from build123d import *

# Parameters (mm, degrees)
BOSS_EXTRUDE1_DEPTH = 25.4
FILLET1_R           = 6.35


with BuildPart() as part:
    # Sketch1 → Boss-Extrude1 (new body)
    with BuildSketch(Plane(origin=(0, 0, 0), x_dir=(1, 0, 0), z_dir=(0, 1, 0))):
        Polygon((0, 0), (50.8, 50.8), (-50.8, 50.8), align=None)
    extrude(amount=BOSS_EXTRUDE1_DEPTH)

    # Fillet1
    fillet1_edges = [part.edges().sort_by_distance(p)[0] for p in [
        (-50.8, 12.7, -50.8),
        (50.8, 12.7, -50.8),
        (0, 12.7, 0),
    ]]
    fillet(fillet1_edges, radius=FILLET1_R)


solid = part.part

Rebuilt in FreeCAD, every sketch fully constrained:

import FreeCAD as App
import Part
import Sketcher

V = App.Vector
Q = App.Units.Quantity


def edges_at(feature, points):
    """Names of the edges that pass closest to the given points."""
    edges = feature.Shape.Edges
    near = lambda p: min(range(len(edges)), key=lambda i: edges[i].distToShape(Part.Vertex(*p))[0])
    return sorted({f"Edge{near(p) + 1}" for p in points})


def add_polygon(sketch, points):
    """Adds a closed chain of lines whose ends are joined by coincident constraints."""
    first, n = sketch.GeometryCount, len(points)
    for a, b in zip(points, points[1:] + points[:1]):
        sketch.addGeometry(Part.LineSegment(App.Vector(*a, 0), App.Vector(*b, 0)), False)
    for i in range(n):
        sketch.addConstraint(Sketcher.Constraint("Coincident", first + i, 2, first + (i + 1) % n, 1))

doc = App.newDocument("Part")
params = doc.addObject("Spreadsheet::Sheet", "Params")
for row, (alias, value) in enumerate([
    ("sketch1_width", "4 in"),
    ("pad1_length", "1 in"),
    ("fillet_radius", "0.25 in"),
], start=1):
    params.set(f"A{row}", alias)
    params.set(f"B{row}", "=" + value)
    params.setAlias(f"B{row}", alias)

body = doc.addObject("PartDesign::Body", "Body")

sketch1 = body.newObject("Sketcher::SketchObject", "Sketch")
sketch1.AttachmentSupport = (doc.getObject("XZ_Plane"), [""])
sketch1.MapMode = "FlatFace"
add_polygon(sketch1, [(0, 0), (51, -51), (-51, -51)])
sketch1.addConstraint([
    Sketcher.Constraint("Horizontal", 1),
    Sketcher.Constraint("Coincident", 2, 2, -1, 1),
    Sketcher.Constraint("Perpendicular", 0, 2),
    Sketcher.Constraint("Equal", 0, 2),
    Sketcher.Constraint("DistanceX", 1, 2, 1, 1, Q("4 in")),
])
sketch1.setExpression("Constraints[7]", "Params.sketch1_width")
pad1 = body.newObject("PartDesign::Pad", "Pad")
pad1.Profile = sketch1
pad1.setExpression("Length", "Params.pad1_length")
pad1.Reversed = True
doc.recompute()

fillet = body.newObject("PartDesign::Fillet", "Fillet")
fillet.Base = (pad1, edges_at(pad1, [(-50.8, 12.7, -50.8), (50.8, 12.7, -50.8), (0, 12.7, 0)]))
fillet.setExpression("Radius", "Params.fillet_radius")

doc.recompute()
